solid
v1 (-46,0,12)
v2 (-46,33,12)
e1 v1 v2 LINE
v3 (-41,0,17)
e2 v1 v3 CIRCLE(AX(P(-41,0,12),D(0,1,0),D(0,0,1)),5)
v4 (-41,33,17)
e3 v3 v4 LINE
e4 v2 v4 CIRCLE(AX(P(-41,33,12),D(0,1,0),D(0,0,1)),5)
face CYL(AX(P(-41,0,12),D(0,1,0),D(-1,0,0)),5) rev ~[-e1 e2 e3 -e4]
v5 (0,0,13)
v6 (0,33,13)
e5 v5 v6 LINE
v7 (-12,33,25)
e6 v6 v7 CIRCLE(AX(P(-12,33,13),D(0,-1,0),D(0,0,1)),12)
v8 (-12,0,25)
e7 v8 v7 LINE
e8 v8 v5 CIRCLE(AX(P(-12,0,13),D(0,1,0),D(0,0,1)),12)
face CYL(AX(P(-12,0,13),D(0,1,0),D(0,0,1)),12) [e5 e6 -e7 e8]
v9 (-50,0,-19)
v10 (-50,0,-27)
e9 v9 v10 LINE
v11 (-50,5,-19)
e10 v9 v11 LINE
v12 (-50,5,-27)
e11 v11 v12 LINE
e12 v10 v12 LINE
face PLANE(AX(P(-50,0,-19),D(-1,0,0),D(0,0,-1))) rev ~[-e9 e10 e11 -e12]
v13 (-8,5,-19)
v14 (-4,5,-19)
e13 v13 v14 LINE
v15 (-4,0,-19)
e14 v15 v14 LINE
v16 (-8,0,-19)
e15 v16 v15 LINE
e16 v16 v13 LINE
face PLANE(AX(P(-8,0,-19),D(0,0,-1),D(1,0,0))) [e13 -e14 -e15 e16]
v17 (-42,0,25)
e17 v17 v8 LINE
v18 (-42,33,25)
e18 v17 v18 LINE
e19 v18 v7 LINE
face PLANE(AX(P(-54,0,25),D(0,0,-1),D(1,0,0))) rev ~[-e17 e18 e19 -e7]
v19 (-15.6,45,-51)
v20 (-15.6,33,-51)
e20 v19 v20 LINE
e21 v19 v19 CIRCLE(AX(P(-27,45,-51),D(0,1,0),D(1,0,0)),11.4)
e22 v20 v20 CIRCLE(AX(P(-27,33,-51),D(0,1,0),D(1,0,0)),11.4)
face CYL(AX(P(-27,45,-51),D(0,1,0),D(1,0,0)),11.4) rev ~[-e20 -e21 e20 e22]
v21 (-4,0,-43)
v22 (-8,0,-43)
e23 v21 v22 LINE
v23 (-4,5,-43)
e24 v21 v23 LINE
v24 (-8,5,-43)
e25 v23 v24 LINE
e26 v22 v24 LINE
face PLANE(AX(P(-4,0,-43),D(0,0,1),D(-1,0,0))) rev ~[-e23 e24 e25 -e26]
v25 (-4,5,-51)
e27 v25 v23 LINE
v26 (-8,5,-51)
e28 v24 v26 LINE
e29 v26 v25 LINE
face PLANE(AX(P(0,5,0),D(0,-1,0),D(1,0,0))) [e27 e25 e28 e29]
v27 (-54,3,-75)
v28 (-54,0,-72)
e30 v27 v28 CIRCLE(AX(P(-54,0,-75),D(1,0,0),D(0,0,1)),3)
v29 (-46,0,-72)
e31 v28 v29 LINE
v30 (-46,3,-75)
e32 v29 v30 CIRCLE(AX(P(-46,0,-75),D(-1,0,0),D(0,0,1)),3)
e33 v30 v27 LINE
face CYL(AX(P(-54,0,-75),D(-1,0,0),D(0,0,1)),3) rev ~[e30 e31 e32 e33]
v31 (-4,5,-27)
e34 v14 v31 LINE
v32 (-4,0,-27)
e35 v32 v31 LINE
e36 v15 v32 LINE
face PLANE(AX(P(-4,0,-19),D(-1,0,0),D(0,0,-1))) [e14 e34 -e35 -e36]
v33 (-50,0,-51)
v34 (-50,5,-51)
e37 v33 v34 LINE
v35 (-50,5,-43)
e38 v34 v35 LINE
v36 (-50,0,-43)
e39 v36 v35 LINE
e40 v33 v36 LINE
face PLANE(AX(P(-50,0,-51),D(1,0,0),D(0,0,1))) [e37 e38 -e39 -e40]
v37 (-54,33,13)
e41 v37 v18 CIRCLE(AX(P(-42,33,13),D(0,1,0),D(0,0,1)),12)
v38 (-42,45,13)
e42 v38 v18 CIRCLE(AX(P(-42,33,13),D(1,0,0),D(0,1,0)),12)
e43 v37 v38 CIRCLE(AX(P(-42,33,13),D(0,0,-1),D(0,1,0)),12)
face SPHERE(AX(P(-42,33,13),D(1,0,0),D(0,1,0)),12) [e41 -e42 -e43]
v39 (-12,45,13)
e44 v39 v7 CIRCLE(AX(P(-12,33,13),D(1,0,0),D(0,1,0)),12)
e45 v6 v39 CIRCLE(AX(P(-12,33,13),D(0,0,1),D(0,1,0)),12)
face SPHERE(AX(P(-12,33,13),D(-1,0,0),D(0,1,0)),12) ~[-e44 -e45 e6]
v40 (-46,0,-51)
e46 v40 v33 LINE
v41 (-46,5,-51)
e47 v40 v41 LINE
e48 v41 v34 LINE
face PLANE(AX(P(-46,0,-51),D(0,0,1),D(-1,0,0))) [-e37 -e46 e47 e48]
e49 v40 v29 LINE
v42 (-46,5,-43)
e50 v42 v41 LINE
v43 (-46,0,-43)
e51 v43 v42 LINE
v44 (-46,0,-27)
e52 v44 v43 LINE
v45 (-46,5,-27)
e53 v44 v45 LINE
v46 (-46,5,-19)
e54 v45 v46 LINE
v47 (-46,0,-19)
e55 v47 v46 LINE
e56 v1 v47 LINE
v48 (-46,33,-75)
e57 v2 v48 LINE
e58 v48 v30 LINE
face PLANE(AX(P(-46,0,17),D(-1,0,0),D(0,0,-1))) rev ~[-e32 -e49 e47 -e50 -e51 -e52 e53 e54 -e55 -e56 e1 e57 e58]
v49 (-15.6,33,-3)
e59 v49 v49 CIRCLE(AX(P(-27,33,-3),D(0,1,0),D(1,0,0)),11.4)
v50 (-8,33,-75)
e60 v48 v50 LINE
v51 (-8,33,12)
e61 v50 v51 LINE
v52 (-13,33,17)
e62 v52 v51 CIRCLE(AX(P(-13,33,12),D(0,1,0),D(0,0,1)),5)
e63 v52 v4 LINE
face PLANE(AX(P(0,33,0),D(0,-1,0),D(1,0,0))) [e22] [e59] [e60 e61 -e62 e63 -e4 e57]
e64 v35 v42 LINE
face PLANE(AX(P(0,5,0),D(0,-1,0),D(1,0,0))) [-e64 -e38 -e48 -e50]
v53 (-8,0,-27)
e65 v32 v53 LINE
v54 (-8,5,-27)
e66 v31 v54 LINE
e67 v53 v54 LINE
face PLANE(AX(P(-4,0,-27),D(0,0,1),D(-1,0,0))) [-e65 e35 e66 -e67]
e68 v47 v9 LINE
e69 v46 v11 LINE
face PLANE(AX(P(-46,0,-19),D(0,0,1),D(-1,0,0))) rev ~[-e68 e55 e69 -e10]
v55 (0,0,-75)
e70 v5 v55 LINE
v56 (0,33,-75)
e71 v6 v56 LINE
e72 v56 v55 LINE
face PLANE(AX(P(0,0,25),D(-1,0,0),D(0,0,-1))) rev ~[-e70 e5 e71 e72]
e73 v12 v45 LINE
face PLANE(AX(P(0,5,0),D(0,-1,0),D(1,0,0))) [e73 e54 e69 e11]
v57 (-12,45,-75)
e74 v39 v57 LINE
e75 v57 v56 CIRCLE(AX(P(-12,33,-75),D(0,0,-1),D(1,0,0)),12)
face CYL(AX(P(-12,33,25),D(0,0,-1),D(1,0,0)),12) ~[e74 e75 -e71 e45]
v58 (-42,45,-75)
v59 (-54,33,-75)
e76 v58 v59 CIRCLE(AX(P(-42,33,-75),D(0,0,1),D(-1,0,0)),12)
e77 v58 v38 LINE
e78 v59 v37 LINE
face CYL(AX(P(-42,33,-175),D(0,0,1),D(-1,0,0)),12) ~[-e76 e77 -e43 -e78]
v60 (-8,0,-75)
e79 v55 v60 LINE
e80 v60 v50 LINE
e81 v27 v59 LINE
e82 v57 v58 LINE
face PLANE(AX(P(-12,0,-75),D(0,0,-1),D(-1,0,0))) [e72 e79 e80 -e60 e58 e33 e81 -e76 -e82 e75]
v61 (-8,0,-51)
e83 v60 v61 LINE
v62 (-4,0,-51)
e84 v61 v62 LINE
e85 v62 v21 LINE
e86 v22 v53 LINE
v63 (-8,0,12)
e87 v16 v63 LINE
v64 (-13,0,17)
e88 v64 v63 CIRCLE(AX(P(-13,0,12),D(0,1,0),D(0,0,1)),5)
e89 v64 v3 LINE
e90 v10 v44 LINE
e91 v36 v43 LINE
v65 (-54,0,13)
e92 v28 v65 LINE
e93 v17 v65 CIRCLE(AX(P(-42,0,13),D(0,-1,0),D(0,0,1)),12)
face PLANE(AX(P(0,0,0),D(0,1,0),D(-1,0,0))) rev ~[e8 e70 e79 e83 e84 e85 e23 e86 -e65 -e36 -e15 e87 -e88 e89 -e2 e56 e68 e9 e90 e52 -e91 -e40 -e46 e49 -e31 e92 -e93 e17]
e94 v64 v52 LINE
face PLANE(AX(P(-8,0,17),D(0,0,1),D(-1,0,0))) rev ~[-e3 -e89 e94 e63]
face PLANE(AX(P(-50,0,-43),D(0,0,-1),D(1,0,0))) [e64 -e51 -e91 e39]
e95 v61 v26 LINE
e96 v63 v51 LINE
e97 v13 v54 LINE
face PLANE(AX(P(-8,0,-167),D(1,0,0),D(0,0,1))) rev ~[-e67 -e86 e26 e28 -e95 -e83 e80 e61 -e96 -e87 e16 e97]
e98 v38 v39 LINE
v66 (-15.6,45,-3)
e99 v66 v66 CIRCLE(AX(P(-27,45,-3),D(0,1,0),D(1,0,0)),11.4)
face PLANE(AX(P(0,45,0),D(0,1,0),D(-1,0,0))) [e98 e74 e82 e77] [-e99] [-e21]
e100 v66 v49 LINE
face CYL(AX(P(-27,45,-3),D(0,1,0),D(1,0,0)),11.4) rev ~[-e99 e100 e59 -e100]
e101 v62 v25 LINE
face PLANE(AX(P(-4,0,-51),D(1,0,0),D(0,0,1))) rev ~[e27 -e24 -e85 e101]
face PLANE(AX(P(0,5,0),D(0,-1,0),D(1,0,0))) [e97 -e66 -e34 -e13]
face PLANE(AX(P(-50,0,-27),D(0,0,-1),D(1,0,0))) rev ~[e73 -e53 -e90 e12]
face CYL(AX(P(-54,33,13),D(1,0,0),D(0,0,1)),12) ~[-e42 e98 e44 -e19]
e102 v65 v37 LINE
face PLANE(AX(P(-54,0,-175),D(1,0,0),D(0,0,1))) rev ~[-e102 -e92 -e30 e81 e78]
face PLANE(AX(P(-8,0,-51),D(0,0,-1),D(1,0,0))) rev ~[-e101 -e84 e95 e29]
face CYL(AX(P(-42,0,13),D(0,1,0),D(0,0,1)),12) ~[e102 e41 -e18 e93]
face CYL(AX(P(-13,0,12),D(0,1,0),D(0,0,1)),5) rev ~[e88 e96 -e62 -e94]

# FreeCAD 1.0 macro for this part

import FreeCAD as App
import Part
import Sketcher


def edges_at(feature, points):
    """Names of the edges that pass closest to the given points."""
    edges = feature.Shape.Edges
    near = lambda p: min(range(len(edges)), key=lambda i: edges[i].distToShape(Part.Vertex(*p))[0])
    return sorted({f"Edge{near(p) + 1}" for p in points})

doc = App.newDocument("Part")
body = doc.addObject("PartDesign::Body", "Body")

sketch1 = doc.addObject("Sketcher::SketchObject", "Sketch")
body.addObject(sketch1)
sketch1.AttachmentSupport = (doc.XZ_Plane, [""])
sketch1.MapMode = "FlatFace"
sketch1.addGeometry(Part.LineSegment(App.Vector(-54, 25, 0), App.Vector(0, 25, 0)), False)
sketch1.addGeometry(Part.LineSegment(App.Vector(0, 25, 0), App.Vector(0, -175, 0)), False)
sketch1.addGeometry(Part.LineSegment(App.Vector(0, -175, 0), App.Vector(-54, -175, 0)), False)
sketch1.addGeometry(Part.LineSegment(App.Vector(-54, -175, 0), App.Vector(-54, 25, 0)), False)
sketch1.addConstraint(Sketcher.Constraint("Coincident", 0, 2, 1, 1))
sketch1.addConstraint(Sketcher.Constraint("Coincident", 1, 2, 2, 1))
sketch1.addConstraint(Sketcher.Constraint("Coincident", 2, 2, 3, 1))
sketch1.addConstraint(Sketcher.Constraint("Coincident", 3, 2, 0, 1))
sketch1.addConstraint(Sketcher.Constraint("Horizontal", 0))
sketch1.addConstraint(Sketcher.Constraint("Vertical", 1))
sketch1.addConstraint(Sketcher.Constraint("Horizontal", 2))
sketch1.addConstraint(Sketcher.Constraint("Vertical", 3))
sketch1.addConstraint(Sketcher.Constraint("PointOnObject", 0, 2, -2))
sketch1.addConstraint(Sketcher.Constraint("DistanceX", 0, 1, 0, 2, 54.0))
sketch1.addConstraint(Sketcher.Constraint("DistanceY", 1, 2, 1, 1, 200.0))
sketch1.addConstraint(Sketcher.Constraint("DistanceY", -1, 1, 0, 2, 25.0))
pad1 = doc.addObject("PartDesign::Pad", "Pad")
body.addObject(pad1)
pad1.Profile = sketch1
pad1.Length = 45
pad1.Reversed = True

sketch2 = doc.addObject("Sketcher::SketchObject", "Sketch001")
body.addObject(sketch2)
sketch2.AttachmentSupport = (doc.XZ_Plane, [""])
sketch2.MapMode = "FlatFace"
sketch2.AttachmentOffset = App.Placement(App.Vector(0, 0, -45), App.Rotation())
sketch2.addGeometry(Part.Circle(App.Vector(-27, -3, 0), App.Vector(0, 0, 1), 11.4), False)
sketch2.addGeometry(Part.Circle(App.Vector(-27, -51, 0), App.Vector(0, 0, 1), 11.4), False)
sketch2.addGeometry(Part.Circle(App.Vector(-27, -99, 0), App.Vector(0, 0, 1), 11.4), False)
sketch2.addGeometry(Part.Circle(App.Vector(-27, -147, 0), App.Vector(0, 0, 1), 11.4), False)
sketch2.addConstraint(Sketcher.Constraint("Equal", 0, 1))
sketch2.addConstraint(Sketcher.Constraint("Equal", 1, 2))
sketch2.addConstraint(Sketcher.Constraint("Equal", 2, 3))
sketch2.addConstraint(Sketcher.Constraint("Vertical", 0, 3, 1, 3))
sketch2.addConstraint(Sketcher.Constraint("Vertical", 1, 3, 2, 3))
sketch2.addConstraint(Sketcher.Constraint("Vertical", 2, 3, 3, 3))
sketch2.addConstraint(Sketcher.Constraint("Diameter", 0, 22.8))
sketch2.addConstraint(Sketcher.Constraint("DistanceY", 1, 3, 0, 3, 48.0))
sketch2.addConstraint(Sketcher.Constraint("DistanceY", 2, 3, 1, 3, 48.0))
sketch2.addConstraint(Sketcher.Constraint("DistanceY", 3, 3, 2, 3, 48.0))
sketch2.addConstraint(Sketcher.Constraint("DistanceX", 0, 3, -1, 1, 27.0))
sketch2.addConstraint(Sketcher.Constraint("DistanceY", 0, 3, -1, 1, 3.0))
pocket1 = doc.addObject("PartDesign::Pocket", "Pocket")
body.addObject(pocket1)
pocket1.Profile = sketch2
pocket1.Type = "UpToFirst"
pocket1.Reversed = True

sketch3 = doc.addObject("Sketcher::SketchObject", "Sketch002")
body.addObject(sketch3)
sketch3.AttachmentSupport = (doc.XZ_Plane, [""])
sketch3.MapMode = "FlatFace"
sketch3.addGeometry(Part.LineSegment(App.Vector(-8, -167, 0), App.Vector(-8, 17, 0)), False)
sketch3.addGeometry(Part.LineSegment(App.Vector(-8, 17, 0), App.Vector(-46, 17, 0)), False)
sketch3.addGeometry(Part.LineSegment(App.Vector(-46, 17, 0), App.Vector(-46, -167, 0)), False)
sketch3.addGeometry(Part.LineSegment(App.Vector(-46, -167, 0), App.Vector(-8, -167, 0)), False)
sketch3.addConstraint(Sketcher.Constraint("Coincident", 0, 2, 1, 1))
sketch3.addConstraint(Sketcher.Constraint("Coincident", 1, 2, 2, 1))
sketch3.addConstraint(Sketcher.Constraint("Coincident", 2, 2, 3, 1))
sketch3.addConstraint(Sketcher.Constraint("Coincident", 3, 2, 0, 1))
sketch3.addConstraint(Sketcher.Constraint("Vertical", 0))
sketch3.addConstraint(Sketcher.Constraint("Horizontal", 1))
sketch3.addConstraint(Sketcher.Constraint("Vertical", 2))
sketch3.addConstraint(Sketcher.Constraint("Horizontal", 3))
sketch3.addConstraint(Sketcher.Constraint("DistanceX", 1, 2, 1, 1, 38.0))
sketch3.addConstraint(Sketcher.Constraint("DistanceX", 0, 2, -1, 1, 8.0))
sketch3.addConstraint(Sketcher.Constraint("DistanceY", 0, 1, 0, 2, 184.0))
sketch3.addConstraint(Sketcher.Constraint("DistanceY", -1, 1, 0, 2, 17.0))
pocket2 = doc.addObject("PartDesign::Pocket", "Pocket001")
body.addObject(pocket2)
pocket2.Profile = sketch3
pocket2.Length = 33
doc.recompute()

fillet = doc.addObject("PartDesign::Fillet", "Fillet")
body.addObject(fillet)
fillet.Base = (pocket2, edges_at(pocket2, [
    (-27, 45, 25),
    (-54, 45, -75),
    (0, 45, -75),
    (0, 22.5, 25),
    (-54, 22.5, 25),
    (0, 22.5, -175),
    (-27, 45, -175),
    (-54, 22.5, -175),
]))
fillet.Radius = 12

sketch4 = doc.addObject("Sketcher::SketchObject", "Sketch003")
body.addObject(sketch4)
sketch4.AttachmentSupport = (doc.YZ_Plane, [""])
sketch4.MapMode = "FlatFace"
sketch4.AttachmentOffset = App.Placement(App.Vector(0, 0, -54), App.Rotation())
sketch4.addGeometry(Part.Circle(App.Vector(0, -75, 0), App.Vector(0, 0, 1), 3), False)
sketch4.addConstraint(Sketcher.Constraint("PointOnObject", 0, 3, -2))
sketch4.addConstraint(Sketcher.Constraint("Diameter", 0, 6.0))
sketch4.addConstraint(Sketcher.Constraint("DistanceY", 0, 3, -1, 1, 75.0))
pocket3 = doc.addObject("PartDesign::Pocket", "Pocket002")
body.addObject(pocket3)
pocket3.Profile = sketch4
pocket3.Length = 8
pocket3.Reversed = True
doc.recompute()

fillet2 = doc.addObject("PartDesign::Fillet", "Fillet001")
body.addObject(fillet2)
fillet2.Base = (pocket3, edges_at(pocket3, [
    (-8, 16.5, 17),
    (-46, 16.5, 17),
    (-8, 16.5, -167),
    (-46, 16.5, -167),
]))
fillet2.Radius = 5

sketch5 = doc.addObject("Sketcher::SketchObject", "Sketch004")
body.addObject(sketch5)
sketch5.AttachmentSupport = (doc.XY_Plane, [""])
sketch5.MapMode = "FlatFace"
sketch5.AttachmentOffset = App.Placement(App.Vector(0, 0, -175), App.Rotation())
sketch5.addGeometry(Part.LineSegment(App.Vector(-95.179, -32.2986, 0), App.Vector(-95.179, 90.3723, 0)), False)
sketch5.addGeometry(Part.LineSegment(App.Vector(-95.179, 90.3723, 0), App.Vector(12.5359, 90.3723, 0)), False)
sketch5.addGeometry(Part.LineSegment(App.Vector(12.5359, 90.3723, 0), App.Vector(12.5359, -32.2986, 0)), False)
sketch5.addGeometry(Part.LineSegment(App.Vector(12.5359, -32.2986, 0), App.Vector(-95.179, -32.2986, 0)), False)
sketch5.addConstraint(Sketcher.Constraint("Coincident", 0, 2, 1, 1))
sketch5.addConstraint(Sketcher.Constraint("Coincident", 1, 2, 2, 1))
sketch5.addConstraint(Sketcher.Constraint("Coincident", 2, 2, 3, 1))
sketch5.addConstraint(Sketcher.Constraint("Coincident", 3, 2, 0, 1))
sketch5.addConstraint(Sketcher.Constraint("Vertical", 0))
sketch5.addConstraint(Sketcher.Constraint("Horizontal", 1))
sketch5.addConstraint(Sketcher.Constraint("Vertical", 2))
sketch5.addConstraint(Sketcher.Constraint("Horizontal", 3))
sketch5.addConstraint(Sketcher.Constraint("DistanceX", 1, 1, 1, 2, 107.715))
sketch5.addConstraint(Sketcher.Constraint("DistanceY", 0, 1, 0, 2, 122.671))
sketch5.addConstraint(Sketcher.Constraint("DistanceX", 0, 2, -1, 1, 95.179))
sketch5.addConstraint(Sketcher.Constraint("DistanceY", -1, 1, 0, 2, 90.3723))
pocket4 = doc.addObject("PartDesign::Pocket", "Pocket003")
body.addObject(pocket4)
pocket4.Profile = sketch5
pocket4.Length = 100
pocket4.Reversed = True

sketch6 = doc.addObject("Sketcher::SketchObject", "Sketch005")
body.addObject(sketch6)
sketch6.AttachmentSupport = (doc.XZ_Plane, [""])
sketch6.MapMode = "FlatFace"
sketch6.addGeometry(Part.LineSegment(App.Vector(-4, -19, 0), App.Vector(-8, -19, 0)), False)
sketch6.addGeometry(Part.LineSegment(App.Vector(-8, -19, 0), App.Vector(-8, -27, 0)), False)
sketch6.addGeometry(Part.LineSegment(App.Vector(-8, -27, 0), App.Vector(-4, -27, 0)), False)
sketch6.addGeometry(Part.LineSegment(App.Vector(-4, -27, 0), App.Vector(-4, -19, 0)), False)
sketch6.addGeometry(Part.LineSegment(App.Vector(-4, -43, 0), App.Vector(-8, -43, 0)), False)
sketch6.addGeometry(Part.LineSegment(App.Vector(-8, -43, 0), App.Vector(-8, -51, 0)), False)
sketch6.addGeometry(Part.LineSegment(App.Vector(-8, -51, 0), App.Vector(-4, -51, 0)), False)
sketch6.addGeometry(Part.LineSegment(App.Vector(-4, -51, 0), App.Vector(-4, -43, 0)), False)
sketch6.addGeometry(Part.LineSegment(App.Vector(-50, -51, 0), App.Vector(-46, -51, 0)), False)
sketch6.addGeometry(Part.LineSegment(App.Vector(-46, -51, 0), App.Vector(-46, -43, 0)), False)
sketch6.addGeometry(Part.LineSegment(App.Vector(-46, -43, 0), App.Vector(-50, -43, 0)), False)
sketch6.addGeometry(Part.LineSegment(App.Vector(-50, -43, 0), App.Vector(-50, -51, 0)), False)
sketch6.addGeometry(Part.LineSegment(App.Vector(-46, -27, 0), App.Vector(-46, -19, 0)), False)
sketch6.addGeometry(Part.LineSegment(App.Vector(-46, -19, 0), App.Vector(-50, -19, 0)), False)
sketch6.addGeometry(Part.LineSegment(App.Vector(-50, -19, 0), App.Vector(-50, -27, 0)), False)
sketch6.addGeometry(Part.LineSegment(App.Vector(-50, -27, 0), App.Vector(-46, -27, 0)), False)
sketch6.addConstraint(Sketcher.Constraint("Coincident", 0, 2, 1, 1))
sketch6.addConstraint(Sketcher.Constraint("Coincident", 1, 2, 2, 1))
sketch6.addConstraint(Sketcher.Constraint("Coincident", 2, 2, 3, 1))
sketch6.addConstraint(Sketcher.Constraint("Coincident", 3, 2, 0, 1))
sketch6.addConstraint(Sketcher.Constraint("Coincident", 4, 2, 5, 1))
sketch6.addConstraint(Sketcher.Constraint("Coincident", 5, 2, 6, 1))
sketch6.addConstraint(Sketcher.Constraint("Coincident", 6, 2, 7, 1))
sketch6.addConstraint(Sketcher.Constraint("Coincident", 7, 2, 4, 1))
sketch6.addConstraint(Sketcher.Constraint("Coincident", 8, 2, 9, 1))
sketch6.addConstraint(Sketcher.Constraint("Coincident", 9, 2, 10, 1))
sketch6.addConstraint(Sketcher.Constraint("Coincident", 10, 2, 11, 1))
sketch6.addConstraint(Sketcher.Constraint("Coincident", 11, 2, 8, 1))
sketch6.addConstraint(Sketcher.Constraint("Coincident", 12, 2, 13, 1))
sketch6.addConstraint(Sketcher.Constraint("Coincident", 13, 2, 14, 1))
sketch6.addConstraint(Sketcher.Constraint("Coincident", 14, 2, 15, 1))
sketch6.addConstraint(Sketcher.Constraint("Coincident", 15, 2, 12, 1))
sketch6.addConstraint(Sketcher.Constraint("Horizontal", 0))
sketch6.addConstraint(Sketcher.Constraint("Vertical", 1))
sketch6.addConstraint(Sketcher.Constraint("Horizontal", 2))
sketch6.addConstraint(Sketcher.Constraint("Vertical", 3))
sketch6.addConstraint(Sketcher.Constraint("Horizontal", 4))
sketch6.addConstraint(Sketcher.Constraint("Vertical", 5))
sketch6.addConstraint(Sketcher.Constraint("Horizontal", 6))
sketch6.addConstraint(Sketcher.Constraint("Vertical", 7))
sketch6.addConstraint(Sketcher.Constraint("Horizontal", 8))
sketch6.addConstraint(Sketcher.Constraint("Vertical", 9))
sketch6.addConstraint(Sketcher.Constraint("Horizontal", 10))
sketch6.addConstraint(Sketcher.Constraint("Vertical", 11))
sketch6.addConstraint(Sketcher.Constraint("Vertical", 12))
sketch6.addConstraint(Sketcher.Constraint("Horizontal", 13))
sketch6.addConstraint(Sketcher.Constraint("Vertical", 14))
sketch6.addConstraint(Sketcher.Constraint("Horizontal", 15))
sketch6.addConstraint(Sketcher.Constraint("Horizontal", 6, 2, 8, 2))
sketch6.addConstraint(Sketcher.Constraint("Horizontal", 7, 2, 9, 2))
sketch6.addConstraint(Sketcher.Constraint("Horizontal", 3, 2, 12, 2))
sketch6.addConstraint(Sketcher.Constraint("Horizontal", 2, 2, 14, 2))
sketch6.addConstraint(Sketcher.Constraint("Vertical", 1, 2, 4, 2))
sketch6.addConstraint(Sketcher.Constraint("Vertical", 3, 2, 6, 2))
sketch6.addConstraint(Sketcher.Constraint("Vertical", 9, 2, 12, 2))
sketch6.addConstraint(Sketcher.Constraint("Vertical", 11, 2, 13, 2))
sketch6.addConstraint(Sketcher.Constraint("Equal", 6, 8))
sketch6.addConstraint(Sketcher.Constraint("Equal", 3, 5))
sketch6.addConstraint(Sketcher.Constraint("DistanceX", 0, 2, 0, 1, 4.0))
sketch6.addConstraint(Sketcher.Constraint("DistanceY", 1, 2, 1, 1, 8.0))
sketch6.addConstraint(Sketcher.Constraint("DistanceX", 0, 2, -1, 1, 8.0))
sketch6.addConstraint(Sketcher.Constraint("DistanceY", 0, 2, -1, 1, 19.0))
sketch6.addConstraint(Sketcher.Constraint("DistanceY", 4, 2, -1, 1, 43.0))
sketch6.addConstraint(Sketcher.Constraint("DistanceX", 8, 2, -1, 1, 46.0))
pocket5 = doc.addObject("PartDesign::Pocket", "Pocket004")
body.addObject(pocket5)
pocket5.Profile = sketch6
pocket5.Length = 5

doc.recompute()
